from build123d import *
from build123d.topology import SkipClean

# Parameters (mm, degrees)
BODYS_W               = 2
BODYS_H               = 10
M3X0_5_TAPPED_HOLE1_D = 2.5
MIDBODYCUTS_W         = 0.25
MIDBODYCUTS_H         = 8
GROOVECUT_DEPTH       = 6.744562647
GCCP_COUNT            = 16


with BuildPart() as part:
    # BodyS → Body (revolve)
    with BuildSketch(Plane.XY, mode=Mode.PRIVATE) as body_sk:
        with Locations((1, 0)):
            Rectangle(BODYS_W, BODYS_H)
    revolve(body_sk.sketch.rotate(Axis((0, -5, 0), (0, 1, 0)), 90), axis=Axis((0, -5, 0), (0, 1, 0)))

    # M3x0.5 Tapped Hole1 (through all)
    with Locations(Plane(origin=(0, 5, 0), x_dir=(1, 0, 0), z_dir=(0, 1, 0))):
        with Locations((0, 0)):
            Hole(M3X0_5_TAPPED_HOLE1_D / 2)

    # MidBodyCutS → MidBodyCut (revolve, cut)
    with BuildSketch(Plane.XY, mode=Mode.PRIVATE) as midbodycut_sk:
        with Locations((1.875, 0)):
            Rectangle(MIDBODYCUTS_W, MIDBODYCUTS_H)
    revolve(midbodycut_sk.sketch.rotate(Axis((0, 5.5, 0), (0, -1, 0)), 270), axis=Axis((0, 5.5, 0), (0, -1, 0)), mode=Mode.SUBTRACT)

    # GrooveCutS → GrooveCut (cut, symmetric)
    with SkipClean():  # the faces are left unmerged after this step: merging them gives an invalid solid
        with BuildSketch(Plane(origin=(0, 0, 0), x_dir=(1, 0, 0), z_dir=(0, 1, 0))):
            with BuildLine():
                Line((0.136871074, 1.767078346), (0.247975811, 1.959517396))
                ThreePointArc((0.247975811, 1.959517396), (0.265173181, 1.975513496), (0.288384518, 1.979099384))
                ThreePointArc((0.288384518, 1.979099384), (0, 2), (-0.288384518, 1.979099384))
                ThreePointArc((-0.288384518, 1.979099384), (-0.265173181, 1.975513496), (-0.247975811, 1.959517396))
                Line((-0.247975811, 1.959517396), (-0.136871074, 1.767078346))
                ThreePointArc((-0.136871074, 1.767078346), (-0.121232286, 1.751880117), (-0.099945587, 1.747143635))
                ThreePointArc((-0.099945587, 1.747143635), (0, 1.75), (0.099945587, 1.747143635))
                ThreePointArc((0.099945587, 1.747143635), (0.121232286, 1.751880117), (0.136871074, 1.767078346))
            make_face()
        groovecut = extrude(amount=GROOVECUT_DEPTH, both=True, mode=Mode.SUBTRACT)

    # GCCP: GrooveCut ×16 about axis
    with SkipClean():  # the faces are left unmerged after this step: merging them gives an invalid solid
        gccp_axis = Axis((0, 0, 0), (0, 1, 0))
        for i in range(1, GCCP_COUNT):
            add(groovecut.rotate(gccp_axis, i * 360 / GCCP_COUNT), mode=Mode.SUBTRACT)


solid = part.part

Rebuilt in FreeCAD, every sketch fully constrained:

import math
import FreeCAD as App
import Part
import Sketcher

V = App.Vector
Q = App.Units.Quantity

doc = App.newDocument("Part")
params = doc.addObject("Spreadsheet::Sheet", "Params")
for row, (alias, value) in enumerate([
    ("sketch1_width", "2 mm"),
    ("sketch1_height", "10 mm"),
    ("revolution_angle", "360 deg"),
    ("sketch2_diameter", "2.5 mm"),
    ("hole_diameter", "2.5 mm"),
    ("sketch3_height", "8 mm"),
    ("sketch3_width", "0.25 mm"),
    ("groove_angle", "360 deg"),
    ("sketch4_radius", "2 mm"),
    ("sketch4_radius2", "0.04 mm"),
    ("sketch4_radius3", "1.75 mm"),
    ("pocket1_length", "13.489125 mm"),
], start=1):
    params.set(f"A{row}", alias)
    params.set(f"B{row}", "=" + value)
    params.setAlias(f"B{row}", alias)

body = doc.addObject("PartDesign::Body", "Body")

sketch1 = doc.addObject("Sketcher::SketchObject", "Sketch")
body.addObject(sketch1)
sketch1.AttachmentSupport = (doc.XY_Plane, [""])
sketch1.MapMode = "FlatFace"
sketch1.addGeometry([
    Part.LineSegment(V(0, 5, 0), V(0, -5, 0)),
    Part.LineSegment(V(0, -5, 0), V(2, -5, 0)),
    Part.LineSegment(V(2, -5, 0), V(2, 5, 0)),
    Part.LineSegment(V(2, 5, 0), V(0, 5, 0)),
], False)
sketch1.addConstraint([
    Sketcher.Constraint("Coincident", 0, 2, 1, 1),
    Sketcher.Constraint("Coincident", 1, 2, 2, 1),
    Sketcher.Constraint("Coincident", 2, 2, 3, 1),
    Sketcher.Constraint("Coincident", 3, 2, 0, 1),
    Sketcher.Constraint("Vertical", 0),
    Sketcher.Constraint("Horizontal", 1),
    Sketcher.Constraint("Vertical", 2),
    Sketcher.Constraint("Horizontal", 3),
    Sketcher.Constraint("Symmetric", 0, 2, 3, 2, -1, 1),
    Sketcher.Constraint("DistanceX", 1, 1, 1, 2, Q("2 mm")),
    Sketcher.Constraint("DistanceY", 0, 2, 0, 1, Q("10 mm")),
])
sketch1.setExpression("Constraints[9]", "Params.sketch1_width")
sketch1.setExpression("Constraints[10]", "Params.sketch1_height")
revolution = doc.addObject("PartDesign::Revolution", "Revolution")
body.addObject(revolution)
revolution.Profile = sketch1
revolution.ReferenceAxis = (sketch1, ["V_Axis"])
revolution.setExpression("Angle", "Params.revolution_angle")

sketch2 = doc.addObject("Sketcher::SketchObject", "Sketch001")
body.addObject(sketch2)
sketch2.AttachmentSupport = (doc.XZ_Plane, [""])
sketch2.MapMode = "FlatFace"
sketch2.AttachmentOffset = App.Placement(V(0, 0, -5), App.Rotation())
sketch2.addGeometry(Part.Circle(V(0, 0, 0), V(0, 0, 1), 1.2), False)
sketch2.addConstraint([
    Sketcher.Constraint("Coincident", 0, 3, -1, 1),
    Sketcher.Constraint("Diameter", 0, Q("2.5 mm")),
])
sketch2.setExpression("Constraints[1]", "Params.sketch2_diameter")
doc.recompute()
hole = doc.addObject("PartDesign::Hole", "Hole")
body.addObject(hole)
hole.Profile = sketch2
hole.ThreadType = "None"
hole.setExpression("Diameter", "Params.hole_diameter")
hole.DepthType = "ThroughAll"
hole.Reversed = True

sketch3 = doc.addObject("Sketcher::SketchObject", "Sketch002")
body.addObject(sketch3)
sketch3.AttachmentSupport = (doc.XY_Plane, [""])
sketch3.MapMode = "FlatFace"
sketch3.addGeometry([
    Part.LineSegment(V(1.75, 4, 0), V(1.75, -4, 0)),
    Part.LineSegment(V(1.75, -4, 0), V(2, -4, 0)),
    Part.LineSegment(V(2, -4, 0), V(2, 4, 0)),
    Part.LineSegment(V(2, 4, 0), V(1.75, 4, 0)),
], False)
sketch3.addConstraint([
    Sketcher.Constraint("Coincident", 0, 2, 1, 1),
    Sketcher.Constraint("Coincident", 1, 2, 2, 1),
    Sketcher.Constraint("Coincident", 2, 2, 3, 1),
    Sketcher.Constraint("Coincident", 3, 2, 0, 1),
    Sketcher.Constraint("Vertical", 0),
    Sketcher.Constraint("Horizontal", 1),
    Sketcher.Constraint("Vertical", 2),
    Sketcher.Constraint("Horizontal", 3),
    Sketcher.Constraint("DistanceY", 0, 2, 0, 1, Q("8 mm")),
    Sketcher.Constraint("DistanceY", 0, 2, -1, 1, Q("4 mm")),
    Sketcher.Constraint("DistanceX", -1, 1, 1, 2, Q("2 mm")),
    Sketcher.Constraint("DistanceX", 1, 1, 1, 2, Q("0.25 mm")),
])
sketch3.setExpression("Constraints[8]", "Params.sketch3_height")
sketch3.setExpression("Constraints[11]", "Params.sketch3_width")
groove = doc.addObject("PartDesign::Groove", "Groove")
body.addObject(groove)
groove.Profile = sketch3
groove.ReferenceAxis = (sketch3, ["V_Axis"])
groove.setExpression("Angle", "Params.groove_angle")

sketch4 = doc.addObject("Sketcher::SketchObject", "Sketch003")
body.addObject(sketch4)
sketch4.AttachmentSupport = (doc.XZ_Plane, [""])
sketch4.MapMode = "FlatFace"
sketch4.addGeometry([
    Part.LineSegment(V(0.137, -1.767, 0), V(0.248, -1.96, 0)),
    Part.ArcOfCircle(Part.Circle(V(0.283, -1.94, 0), V(0, 0, 1), 0.04), math.radians(-150), math.radians(-82)),
    Part.ArcOfCircle(Part.Circle(V(0, 0, 0), V(0, 0, 1), 2), math.radians(-98.29), math.radians(-81.71)),
    Part.ArcOfCircle(Part.Circle(V(-0.283, -1.94, 0), V(0, 0, 1), 0.04), math.radians(-98), math.radians(-30)),
    Part.LineSegment(V(-0.248, -1.96, 0), V(-0.137, -1.767, 0)),
    Part.ArcOfCircle(Part.Circle(V(-0.102, -1.787, 0), V(0, 0, 1), 0.04), math.radians(87), math.radians(150)),
    Part.ArcOfCircle(Part.Circle(V(0, 0, 0), V(0, 0, 1), 1.75), math.radians(-93.27), math.radians(-86.73)),
    Part.ArcOfCircle(Part.Circle(V(0.102, -1.787, 0), V(0, 0, 1), 0.04), math.radians(30), math.radians(93)),
], False)
sketch4.addConstraint([
    Sketcher.Constraint("Tangent", 0, 2, 1, 1),
    Sketcher.Constraint("Tangent", 1, 2, 2, 2),
    Sketcher.Constraint("Tangent", 2, 1, 3, 1),
    Sketcher.Constraint("Tangent", 3, 2, 4, 1),
    Sketcher.Constraint("Tangent", 4, 2, 5, 2),
    Sketcher.Constraint("Tangent", 5, 1, 6, 1),
    Sketcher.Constraint("Tangent", 6, 2, 7, 2),
    Sketcher.Constraint("Tangent", 7, 1, 0, 1),
    Sketcher.Constraint("Coincident", 2, 3, -1, 1),
    Sketcher.Constraint("Coincident", 6, 3, -1, 1),
    Sketcher.Constraint("Equal", 1, 3),
    Sketcher.Constraint("Equal", 3, 5),
    Sketcher.Constraint("Equal", 5, 7),
    Sketcher.Constraint("Symmetric", 0, 2, 3, 2, -2),
    Sketcher.Constraint("Radius", 2, Q("2 mm")),
    Sketcher.Constraint("Angle", 0, Q("-60 deg")),
    Sketcher.Constraint("Radius", 1, Q("0.04 mm")),
    Sketcher.Constraint("Radius", 6, Q("1.75 mm")),
    Sketcher.Constraint("DistanceX", 3, 3, 1, 2, Q("0.571001 mm")),
])
sketch4.setExpression("Constraints[14]", "Params.sketch4_radius")
sketch4.setExpression("Constraints[16]", "Params.sketch4_radius2")
sketch4.setExpression("Constraints[17]", "Params.sketch4_radius3")
pocket1 = doc.addObject("PartDesign::Pocket", "Pocket")
body.addObject(pocket1)
pocket1.Profile = sketch4
pocket1.setExpression("Length", "Params.pocket1_length")
pocket1.Midplane = True
doc.recompute()

polarpattern = doc.addObject("PartDesign::PolarPattern", "PolarPattern")
body.addObject(polarpattern)
polarpattern.Originals = [pocket1]
polarpattern.Axis = (doc.Y_Axis, [""])
polarpattern.Angle = 360
polarpattern.Occurrences = 16
body.Tip = polarpattern

doc.recompute()
